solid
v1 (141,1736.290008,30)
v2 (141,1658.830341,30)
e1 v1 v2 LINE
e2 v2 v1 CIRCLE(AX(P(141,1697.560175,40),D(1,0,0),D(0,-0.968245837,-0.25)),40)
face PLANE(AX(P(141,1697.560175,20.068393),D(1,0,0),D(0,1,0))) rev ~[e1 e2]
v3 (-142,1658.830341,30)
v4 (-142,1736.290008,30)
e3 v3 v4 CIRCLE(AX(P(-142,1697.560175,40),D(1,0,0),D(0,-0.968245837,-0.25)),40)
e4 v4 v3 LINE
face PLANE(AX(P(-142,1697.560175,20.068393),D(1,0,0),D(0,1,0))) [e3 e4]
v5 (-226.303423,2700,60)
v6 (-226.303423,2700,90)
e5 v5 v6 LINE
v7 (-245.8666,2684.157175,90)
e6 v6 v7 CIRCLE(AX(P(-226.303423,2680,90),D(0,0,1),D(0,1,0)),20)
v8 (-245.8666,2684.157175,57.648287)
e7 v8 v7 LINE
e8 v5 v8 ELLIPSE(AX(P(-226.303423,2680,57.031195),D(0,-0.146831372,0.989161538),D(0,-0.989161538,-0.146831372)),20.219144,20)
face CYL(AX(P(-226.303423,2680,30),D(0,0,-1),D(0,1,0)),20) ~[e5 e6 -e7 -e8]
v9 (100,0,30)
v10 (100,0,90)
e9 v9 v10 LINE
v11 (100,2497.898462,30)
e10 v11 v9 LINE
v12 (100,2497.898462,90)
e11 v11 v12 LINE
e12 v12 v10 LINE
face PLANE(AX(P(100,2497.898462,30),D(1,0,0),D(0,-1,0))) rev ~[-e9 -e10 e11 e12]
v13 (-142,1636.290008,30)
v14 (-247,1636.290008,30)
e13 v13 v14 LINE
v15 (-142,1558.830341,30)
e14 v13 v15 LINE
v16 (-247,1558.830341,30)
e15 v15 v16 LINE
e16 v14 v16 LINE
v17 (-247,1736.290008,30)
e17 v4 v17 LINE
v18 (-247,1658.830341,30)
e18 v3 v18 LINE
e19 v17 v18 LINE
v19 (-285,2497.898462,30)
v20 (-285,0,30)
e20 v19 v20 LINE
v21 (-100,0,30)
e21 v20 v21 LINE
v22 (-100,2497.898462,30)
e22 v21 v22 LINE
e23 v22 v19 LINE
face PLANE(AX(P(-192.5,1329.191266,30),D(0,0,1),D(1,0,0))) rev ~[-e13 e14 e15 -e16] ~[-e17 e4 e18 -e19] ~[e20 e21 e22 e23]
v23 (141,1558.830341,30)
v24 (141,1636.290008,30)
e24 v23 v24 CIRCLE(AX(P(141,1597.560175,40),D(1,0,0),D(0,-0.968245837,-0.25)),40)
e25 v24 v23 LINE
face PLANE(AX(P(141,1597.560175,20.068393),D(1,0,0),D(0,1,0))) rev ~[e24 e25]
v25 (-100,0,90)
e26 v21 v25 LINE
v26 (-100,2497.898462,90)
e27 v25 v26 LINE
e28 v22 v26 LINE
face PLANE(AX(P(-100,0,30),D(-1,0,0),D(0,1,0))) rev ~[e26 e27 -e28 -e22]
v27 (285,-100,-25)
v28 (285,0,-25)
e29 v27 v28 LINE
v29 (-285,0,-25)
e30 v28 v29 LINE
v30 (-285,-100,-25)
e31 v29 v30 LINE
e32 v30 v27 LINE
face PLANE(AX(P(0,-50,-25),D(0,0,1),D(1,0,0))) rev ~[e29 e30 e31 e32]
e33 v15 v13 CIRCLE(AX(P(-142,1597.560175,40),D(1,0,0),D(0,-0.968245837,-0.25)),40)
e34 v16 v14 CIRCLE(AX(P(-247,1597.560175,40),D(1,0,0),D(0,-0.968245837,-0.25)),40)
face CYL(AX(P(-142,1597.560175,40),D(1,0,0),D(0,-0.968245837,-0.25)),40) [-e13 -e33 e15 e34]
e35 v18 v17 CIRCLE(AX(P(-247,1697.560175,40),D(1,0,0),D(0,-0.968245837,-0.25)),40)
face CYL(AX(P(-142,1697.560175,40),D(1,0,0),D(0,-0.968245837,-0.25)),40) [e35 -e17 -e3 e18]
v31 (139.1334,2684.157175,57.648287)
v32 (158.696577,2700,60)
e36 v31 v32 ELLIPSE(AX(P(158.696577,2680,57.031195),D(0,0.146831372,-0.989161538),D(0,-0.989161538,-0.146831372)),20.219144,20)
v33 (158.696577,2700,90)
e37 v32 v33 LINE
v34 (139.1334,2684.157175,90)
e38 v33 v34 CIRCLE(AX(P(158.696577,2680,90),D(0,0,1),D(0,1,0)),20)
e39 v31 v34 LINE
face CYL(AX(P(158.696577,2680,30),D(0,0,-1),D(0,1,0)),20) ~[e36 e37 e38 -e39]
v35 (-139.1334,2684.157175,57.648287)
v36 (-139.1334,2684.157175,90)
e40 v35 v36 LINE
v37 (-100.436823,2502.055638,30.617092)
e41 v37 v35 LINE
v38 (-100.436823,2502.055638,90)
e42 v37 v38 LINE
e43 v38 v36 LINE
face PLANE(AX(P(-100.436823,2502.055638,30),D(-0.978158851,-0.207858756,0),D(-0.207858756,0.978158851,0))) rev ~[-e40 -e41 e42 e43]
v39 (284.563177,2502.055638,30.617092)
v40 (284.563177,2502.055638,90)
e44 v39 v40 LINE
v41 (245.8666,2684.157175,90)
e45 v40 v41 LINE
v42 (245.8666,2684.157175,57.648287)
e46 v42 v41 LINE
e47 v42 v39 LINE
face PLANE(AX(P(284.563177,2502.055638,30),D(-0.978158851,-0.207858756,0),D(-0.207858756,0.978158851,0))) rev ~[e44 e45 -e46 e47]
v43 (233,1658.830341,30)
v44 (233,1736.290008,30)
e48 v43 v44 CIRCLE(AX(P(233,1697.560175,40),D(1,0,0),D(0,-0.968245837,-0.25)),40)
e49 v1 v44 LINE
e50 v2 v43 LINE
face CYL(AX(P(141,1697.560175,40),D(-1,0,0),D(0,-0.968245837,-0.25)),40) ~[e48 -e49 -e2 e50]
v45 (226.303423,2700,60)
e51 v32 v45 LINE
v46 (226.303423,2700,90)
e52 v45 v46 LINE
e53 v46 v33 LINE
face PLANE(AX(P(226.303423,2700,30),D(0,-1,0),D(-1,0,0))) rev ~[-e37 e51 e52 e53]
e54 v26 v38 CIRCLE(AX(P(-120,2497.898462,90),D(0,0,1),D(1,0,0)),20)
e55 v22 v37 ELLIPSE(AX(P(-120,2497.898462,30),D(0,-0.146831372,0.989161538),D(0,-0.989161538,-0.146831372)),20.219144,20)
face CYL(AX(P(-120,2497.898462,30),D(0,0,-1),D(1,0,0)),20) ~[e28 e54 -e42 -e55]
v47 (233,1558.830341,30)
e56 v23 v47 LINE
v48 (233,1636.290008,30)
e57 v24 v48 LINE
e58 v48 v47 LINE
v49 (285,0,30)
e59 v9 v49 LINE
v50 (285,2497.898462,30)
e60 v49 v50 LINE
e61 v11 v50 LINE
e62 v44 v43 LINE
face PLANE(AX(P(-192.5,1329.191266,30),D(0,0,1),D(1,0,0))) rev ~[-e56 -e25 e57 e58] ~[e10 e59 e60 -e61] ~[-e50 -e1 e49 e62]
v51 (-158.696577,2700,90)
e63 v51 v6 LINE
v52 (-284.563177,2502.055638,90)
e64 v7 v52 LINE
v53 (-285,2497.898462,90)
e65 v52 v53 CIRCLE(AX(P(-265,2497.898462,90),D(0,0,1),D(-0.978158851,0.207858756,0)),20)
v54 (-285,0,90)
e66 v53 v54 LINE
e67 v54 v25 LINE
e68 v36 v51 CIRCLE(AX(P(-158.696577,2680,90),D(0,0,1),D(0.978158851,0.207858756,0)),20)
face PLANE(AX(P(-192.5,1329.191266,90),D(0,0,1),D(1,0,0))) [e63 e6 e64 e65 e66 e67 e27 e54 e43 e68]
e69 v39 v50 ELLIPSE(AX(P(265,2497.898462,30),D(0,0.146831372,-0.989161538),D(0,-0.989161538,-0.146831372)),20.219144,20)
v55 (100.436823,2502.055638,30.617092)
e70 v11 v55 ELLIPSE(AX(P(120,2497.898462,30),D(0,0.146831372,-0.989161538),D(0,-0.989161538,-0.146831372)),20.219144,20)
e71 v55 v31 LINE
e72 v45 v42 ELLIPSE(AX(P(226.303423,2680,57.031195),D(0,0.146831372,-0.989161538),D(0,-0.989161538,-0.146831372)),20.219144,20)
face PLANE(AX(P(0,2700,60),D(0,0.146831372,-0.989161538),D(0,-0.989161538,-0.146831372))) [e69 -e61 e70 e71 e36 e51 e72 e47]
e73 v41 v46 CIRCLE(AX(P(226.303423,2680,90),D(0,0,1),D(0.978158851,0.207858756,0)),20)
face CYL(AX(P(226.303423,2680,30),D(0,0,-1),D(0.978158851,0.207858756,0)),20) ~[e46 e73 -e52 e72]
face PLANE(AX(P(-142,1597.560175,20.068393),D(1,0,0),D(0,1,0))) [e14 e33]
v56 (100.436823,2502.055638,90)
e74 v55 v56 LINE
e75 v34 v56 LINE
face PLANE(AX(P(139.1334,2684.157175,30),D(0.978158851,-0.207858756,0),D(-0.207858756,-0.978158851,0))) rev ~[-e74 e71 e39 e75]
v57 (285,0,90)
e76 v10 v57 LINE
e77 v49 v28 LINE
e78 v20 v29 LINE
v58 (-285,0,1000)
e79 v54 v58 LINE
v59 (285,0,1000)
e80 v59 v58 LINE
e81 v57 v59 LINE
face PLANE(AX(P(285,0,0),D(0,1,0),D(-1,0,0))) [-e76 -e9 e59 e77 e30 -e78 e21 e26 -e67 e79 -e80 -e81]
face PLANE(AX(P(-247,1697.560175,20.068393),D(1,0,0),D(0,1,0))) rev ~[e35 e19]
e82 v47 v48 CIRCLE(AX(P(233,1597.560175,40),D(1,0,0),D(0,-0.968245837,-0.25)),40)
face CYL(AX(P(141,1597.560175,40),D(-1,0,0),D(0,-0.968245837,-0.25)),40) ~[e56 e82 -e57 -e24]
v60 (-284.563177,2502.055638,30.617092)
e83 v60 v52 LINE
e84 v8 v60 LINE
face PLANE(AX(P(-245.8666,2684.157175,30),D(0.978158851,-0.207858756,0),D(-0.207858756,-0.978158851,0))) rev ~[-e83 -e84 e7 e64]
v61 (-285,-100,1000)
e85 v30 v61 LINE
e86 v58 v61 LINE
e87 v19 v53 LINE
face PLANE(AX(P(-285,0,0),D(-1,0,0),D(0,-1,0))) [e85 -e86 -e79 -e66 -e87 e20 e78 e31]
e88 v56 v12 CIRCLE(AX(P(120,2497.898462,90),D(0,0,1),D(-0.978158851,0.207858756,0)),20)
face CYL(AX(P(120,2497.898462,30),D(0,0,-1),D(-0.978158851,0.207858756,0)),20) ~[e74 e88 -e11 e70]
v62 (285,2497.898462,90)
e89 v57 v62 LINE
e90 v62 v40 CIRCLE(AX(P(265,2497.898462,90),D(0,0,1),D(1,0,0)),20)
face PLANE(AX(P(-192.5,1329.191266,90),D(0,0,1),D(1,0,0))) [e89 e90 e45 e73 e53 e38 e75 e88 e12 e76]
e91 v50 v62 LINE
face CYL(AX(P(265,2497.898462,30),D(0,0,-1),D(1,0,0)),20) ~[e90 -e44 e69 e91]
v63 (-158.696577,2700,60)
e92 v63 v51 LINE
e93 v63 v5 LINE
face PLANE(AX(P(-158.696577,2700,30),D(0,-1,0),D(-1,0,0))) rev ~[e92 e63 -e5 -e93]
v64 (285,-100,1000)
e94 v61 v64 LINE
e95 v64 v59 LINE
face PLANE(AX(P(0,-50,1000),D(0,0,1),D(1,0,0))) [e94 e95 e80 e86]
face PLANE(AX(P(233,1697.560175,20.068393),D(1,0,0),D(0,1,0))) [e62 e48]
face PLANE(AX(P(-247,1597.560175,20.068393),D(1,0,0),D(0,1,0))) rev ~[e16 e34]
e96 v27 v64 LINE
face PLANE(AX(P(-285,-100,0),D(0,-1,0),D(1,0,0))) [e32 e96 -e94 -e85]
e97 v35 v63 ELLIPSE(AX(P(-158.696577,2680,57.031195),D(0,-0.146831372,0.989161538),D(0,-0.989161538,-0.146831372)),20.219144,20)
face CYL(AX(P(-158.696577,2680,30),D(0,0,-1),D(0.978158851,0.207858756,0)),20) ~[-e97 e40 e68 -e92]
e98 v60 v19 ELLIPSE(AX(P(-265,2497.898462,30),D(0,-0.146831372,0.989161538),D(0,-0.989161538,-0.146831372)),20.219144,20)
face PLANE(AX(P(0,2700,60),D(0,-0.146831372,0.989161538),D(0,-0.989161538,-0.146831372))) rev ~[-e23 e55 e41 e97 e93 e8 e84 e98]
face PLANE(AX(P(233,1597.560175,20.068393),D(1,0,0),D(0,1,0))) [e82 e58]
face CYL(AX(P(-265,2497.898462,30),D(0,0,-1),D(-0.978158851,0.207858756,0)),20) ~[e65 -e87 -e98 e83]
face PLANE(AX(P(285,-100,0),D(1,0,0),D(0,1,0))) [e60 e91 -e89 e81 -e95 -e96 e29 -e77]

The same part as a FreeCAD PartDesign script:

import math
import FreeCAD as App
import Part
import Sketcher

V = App.Vector

doc = App.newDocument("Part")
body = doc.addObject("PartDesign::Body", "Body")

# Sketch on XY plane
sketch1 = doc.addObject("Sketcher::SketchObject", "Sketch")
body.addObject(sketch1)
sketch1.AttachmentSupport = (doc.XY_Plane, [""])
sketch1.MapMode = "FlatFace"
sketch1.AttachmentOffset = App.Placement(V(0, 0, 30), App.Rotation())
sketch1.addGeometry(Part.LineSegment(V(-100, 0, 0), V(-100, 2497.9, 0)), False)
sketch1.addGeometry(Part.ArcOfCircle(Part.Circle(V(-120, 2497.9, 0), V(0, 0, 1), 20), math.radians(0), math.radians(12)), False)
sketch1.addGeometry(Part.LineSegment(V(-100.4, 2502.1, 0), V(-139.1, 2684.2, 0)), False)
sketch1.addGeometry(Part.ArcOfCircle(Part.Circle(V(-158.7, 2680, 0), V(0, 0, 1), 20), math.radians(12), math.radians(90)), False)
sketch1.addGeometry(Part.LineSegment(V(-158.7, 2700, 0), V(-226.3, 2700, 0)), False)
sketch1.addGeometry(Part.ArcOfCircle(Part.Circle(V(-226.3, 2680, 0), V(0, 0, 1), 20), math.radians(90), math.radians(168)), False)
sketch1.addGeometry(Part.LineSegment(V(-245.9, 2684.2, 0), V(-284.6, 2502.1, 0)), False)
sketch1.addGeometry(Part.ArcOfCircle(Part.Circle(V(-265, 2497.9, 0), V(0, 0, 1), 20), math.radians(168), math.radians(180)), False)
sketch1.addGeometry(Part.LineSegment(V(-285, 2497.9, 0), V(-285, -100, 0)), False)
sketch1.addGeometry(Part.LineSegment(V(-285, -100, 0), V(285, -100, 0)), False)
sketch1.addGeometry(Part.LineSegment(V(285, -100, 0), V(285, 2497.9, 0)), False)
sketch1.addGeometry(Part.ArcOfCircle(Part.Circle(V(265, 2497.9, 0), V(0, 0, 1), 20), math.radians(0), math.radians(12)), False)
sketch1.addGeometry(Part.LineSegment(V(284.6, 2502.1, 0), V(245.9, 2684.2, 0)), False)
sketch1.addGeometry(Part.ArcOfCircle(Part.Circle(V(226.3, 2680, 0), V(0, 0, 1), 20), math.radians(12), math.radians(90)), False)
sketch1.addGeometry(Part.LineSegment(V(226.3, 2700, 0), V(158.7, 2700, 0)), False)
sketch1.addGeometry(Part.ArcOfCircle(Part.Circle(V(158.7, 2680, 0), V(0, 0, 1), 20), math.radians(90), math.radians(168)), False)
sketch1.addGeometry(Part.LineSegment(V(139.1, 2684.2, 0), V(100.4, 2502.1, 0)), False)
sketch1.addGeometry(Part.ArcOfCircle(Part.Circle(V(120, 2497.9, 0), V(0, 0, 1), 20), math.radians(168), math.radians(180)), False)
sketch1.addGeometry(Part.LineSegment(V(100, 2497.9, 0), V(100, 0, 0)), False)
sketch1.addGeometry(Part.LineSegment(V(100, 0, 0), V(-100, 0, 0)), False)
sketch1.addConstraint(Sketcher.Constraint("Tangent", 0, 2, 1, 1))
sketch1.addConstraint(Sketcher.Constraint("Tangent", 1, 2, 2, 1))
sketch1.addConstraint(Sketcher.Constraint("Tangent", 2, 2, 3, 1))
sketch1.addConstraint(Sketcher.Constraint("Tangent", 3, 2, 4, 1))
sketch1.addConstraint(Sketcher.Constraint("Tangent", 4, 2, 5, 1))
sketch1.addConstraint(Sketcher.Constraint("Tangent", 5, 2, 6, 1))
sketch1.addConstraint(Sketcher.Constraint("Tangent", 6, 2, 7, 1))
sketch1.addConstraint(Sketcher.Constraint("Tangent", 7, 2, 8, 1))
sketch1.addConstraint(Sketcher.Constraint("Coincident", 8, 2, 9, 1))
sketch1.addConstraint(Sketcher.Constraint("Coincident", 9, 2, 10, 1))
sketch1.addConstraint(Sketcher.Constraint("Tangent", 10, 2, 11, 1))
sketch1.addConstraint(Sketcher.Constraint("Tangent", 11, 2, 12, 1))
sketch1.addConstraint(Sketcher.Constraint("Tangent", 12, 2, 13, 1))
sketch1.addConstraint(Sketcher.Constraint("Tangent", 13, 2, 14, 1))
sketch1.addConstraint(Sketcher.Constraint("Tangent", 14, 2, 15, 1))
sketch1.addConstraint(Sketcher.Constraint("Tangent", 15, 2, 16, 1))
sketch1.addConstraint(Sketcher.Constraint("Tangent", 16, 2, 17, 1))
sketch1.addConstraint(Sketcher.Constraint("Tangent", 17, 2, 18, 1))
sketch1.addConstraint(Sketcher.Constraint("Coincident", 18, 2, 19, 1))
sketch1.addConstraint(Sketcher.Constraint("Coincident", 19, 2, 0, 1))
sketch1.addConstraint(Sketcher.Constraint("Vertical", 0))
sketch1.addConstraint(Sketcher.Constraint("Horizontal", 4))
sketch1.addConstraint(Sketcher.Constraint("Vertical", 8))
sketch1.addConstraint(Sketcher.Constraint("Horizontal", 9))
sketch1.addConstraint(Sketcher.Constraint("Vertical", 10))
sketch1.addConstraint(Sketcher.Constraint("Horizontal", 14))
sketch1.addConstraint(Sketcher.Constraint("Vertical", 18))
sketch1.addConstraint(Sketcher.Constraint("Horizontal", 19))
sketch1.addConstraint(Sketcher.Constraint("Equal", 1, 3))
sketch1.addConstraint(Sketcher.Constraint("Equal", 3, 5))
sketch1.addConstraint(Sketcher.Constraint("Equal", 5, 7))
sketch1.addConstraint(Sketcher.Constraint("Equal", 7, 11))
sketch1.addConstraint(Sketcher.Constraint("Equal", 11, 13))
sketch1.addConstraint(Sketcher.Constraint("Equal", 13, 15))
sketch1.addConstraint(Sketcher.Constraint("Equal", 15, 17))
sketch1.addConstraint(Sketcher.Constraint("Symmetric", 18, 2, 19, 2, -1, 1))
sketch1.addConstraint(Sketcher.Constraint("Symmetric", 7, 3, 11, 3, -2))
sketch1.addConstraint(Sketcher.Constraint("Symmetric", 5, 3, 13, 3, -2))
sketch1.addConstraint(Sketcher.Constraint("Symmetric", 1, 2, 16, 2, -2))
sketch1.addConstraint(Sketcher.Constraint("Parallel", 2, 12))
sketch1.addConstraint(Sketcher.Constraint("Horizontal", 1, 3, 7, 3))
sketch1.addConstraint(Sketcher.Constraint("Radius", 1, 20.0))
sketch1.addConstraint(Sketcher.Constraint("DistanceX", 9, 1, 9, 2, 570.0))
sketch1.addConstraint(Sketcher.Constraint("DistanceX", 19, 2, 19, 1, 200.0))
sketch1.addConstraint(Sketcher.Constraint("DistanceY", -1, 1, 3, 3, 2680.0))
sketch1.addConstraint(Sketcher.Constraint("DistanceY", 8, 2, -1, 1, 100.0))
sketch1.addConstraint(Sketcher.Constraint("DistanceX", 2, 2, -1, 1, 139.1334))
sketch1.addConstraint(Sketcher.Constraint("DistanceY", 0, 1, 0, 2, 2497.898462))
pad1 = doc.addObject("PartDesign::Pad", "Pad")
body.addObject(pad1)
pad1.Profile = sketch1
pad1.Length = 60

# Sketch on XY plane
sketch2 = doc.addObject("Sketcher::SketchObject", "Sketch001")
body.addObject(sketch2)
sketch2.AttachmentSupport = (doc.XY_Plane, [""])
sketch2.MapMode = "FlatFace"
sketch2.addGeometry(Part.LineSegment(V(-285, 0, 0), V(-285, -100, 0)), False)
sketch2.addGeometry(Part.LineSegment(V(-285, -100, 0), V(285, -100, 0)), False)
sketch2.addGeometry(Part.LineSegment(V(285, -100, 0), V(285, 0, 0)), False)
sketch2.addGeometry(Part.LineSegment(V(285, 0, 0), V(-285, 0, 0)), False)
sketch2.addConstraint(Sketcher.Constraint("Coincident", 0, 2, 1, 1))
sketch2.addConstraint(Sketcher.Constraint("Coincident", 1, 2, 2, 1))
sketch2.addConstraint(Sketcher.Constraint("Coincident", 2, 2, 3, 1))
sketch2.addConstraint(Sketcher.Constraint("Coincident", 3, 2, 0, 1))
sketch2.addConstraint(Sketcher.Constraint("Vertical", 0))
sketch2.addConstraint(Sketcher.Constraint("Horizontal", 1))
sketch2.addConstraint(Sketcher.Constraint("Vertical", 2))
sketch2.addConstraint(Sketcher.Constraint("Horizontal", 3))
sketch2.addConstraint(Sketcher.Constraint("Symmetric", 2, 2, 3, 2, -1, 1))
sketch2.addConstraint(Sketcher.Constraint("DistanceX", 1, 1, 1, 2, 570.0))
sketch2.addConstraint(Sketcher.Constraint("DistanceY", 0, 2, 0, 1, 100.0))
pad2 = doc.addObject("PartDesign::Pad", "Pad001")
body.addObject(pad2)
pad2.Profile = sketch2
pad2.Type = "TwoLengths"
pad2.Length = 1000
pad2.Length2 = 25

# Sketch on YZ plane
sketch3 = doc.addObject("Sketcher::SketchObject", "Sketch002")
body.addObject(sketch3)
sketch3.AttachmentSupport = (doc.YZ_Plane, [""])
sketch3.MapMode = "FlatFace"
sketch3.AttachmentOffset = App.Placement(V(0, 0, 141), App.Rotation())
sketch3.addGeometry(Part.LineSegment(V(1736, 30, 0), V(1659, 30, 0)), False)
sketch3.addGeometry(Part.ArcOfCircle(Part.Circle(V(1698, 40, 0), V(0, 0, 1), 40), math.radians(-166), math.radians(-14)), False)
sketch3.addGeometry(Part.LineSegment(V(1636, 30, 0), V(1559, 30, 0)), False)
sketch3.addGeometry(Part.ArcOfCircle(Part.Circle(V(1598, 40, 0), V(0, 0, 1), 40), math.radians(-166), math.radians(-14)), False)
sketch3.addConstraint(Sketcher.Constraint("Coincident", 0, 1, 1, 2))
sketch3.addConstraint(Sketcher.Constraint("Coincident", 1, 1, 0, 2))
sketch3.addConstraint(Sketcher.Constraint("Coincident", 2, 1, 3, 2))
sketch3.addConstraint(Sketcher.Constraint("Coincident", 3, 1, 2, 2))
sketch3.addConstraint(Sketcher.Constraint("Horizontal", 0))
sketch3.addConstraint(Sketcher.Constraint("Horizontal", 2))
sketch3.addConstraint(Sketcher.Constraint("Equal", 1, 3))
sketch3.addConstraint(Sketcher.Constraint("Horizontal", 1, 3, 3, 3))
sketch3.addConstraint(Sketcher.Constraint("Horizontal", 1, 1, 2, 1))
sketch3.addConstraint(Sketcher.Constraint("Radius", 1, 40.0))
sketch3.addConstraint(Sketcher.Constraint("DistanceY", -1, 1, 1, 3, 40.0))
sketch3.addConstraint(Sketcher.Constraint("DistanceY", -1, 1, 0, 1, 30.0))
sketch3.addConstraint(Sketcher.Constraint("DistanceX", 3, 3, 1, 3, 100.0))
sketch3.addConstraint(Sketcher.Constraint("DistanceX", -1, 1, 0, 1, 1736.290008))
pad3 = doc.addObject("PartDesign::Pad", "Pad002")
body.addObject(pad3)
pad3.Profile = sketch3
pad3.Length = 92

# Sketch on YZ plane
sketch4 = doc.addObject("Sketcher::SketchObject", "Sketch003")
body.addObject(sketch4)
sketch4.AttachmentSupport = (doc.YZ_Plane, [""])
sketch4.MapMode = "FlatFace"
sketch4.AttachmentOffset = App.Placement(V(0, 0, -142), App.Rotation())
sketch4.addGeometry(Part.LineSegment(V(1636, 30, 0), V(1559, 30, 0)), False)
sketch4.addGeometry(Part.ArcOfCircle(Part.Circle(V(1598, 40, 0), V(0, 0, 1), 40), math.radians(-166), math.radians(-14)), False)
sketch4.addGeometry(Part.LineSegment(V(1736, 30, 0), V(1659, 30, 0)), False)
sketch4.addGeometry(Part.ArcOfCircle(Part.Circle(V(1698, 40, 0), V(0, 0, 1), 40), math.radians(-166), math.radians(-14)), False)
sketch4.addConstraint(Sketcher.Constraint("Coincident", 0, 1, 1, 2))
sketch4.addConstraint(Sketcher.Constraint("Coincident", 1, 1, 0, 2))
sketch4.addConstraint(Sketcher.Constraint("Coincident", 2, 1, 3, 2))
sketch4.addConstraint(Sketcher.Constraint("Coincident", 3, 1, 2, 2))
sketch4.addConstraint(Sketcher.Constraint("Horizontal", 0))
sketch4.addConstraint(Sketcher.Constraint("Horizontal", 2))
sketch4.addConstraint(Sketcher.Constraint("Equal", 1, 3))
sketch4.addConstraint(Sketcher.Constraint("Horizontal", 1, 3, 3, 3))
sketch4.addConstraint(Sketcher.Constraint("Horizontal", 1, 1, 2, 1))
sketch4.addConstraint(Sketcher.Constraint("Radius", 1, 40.0))
sketch4.addConstraint(Sketcher.Constraint("DistanceY", -1, 1, 1, 3, 40.0))
sketch4.addConstraint(Sketcher.Constraint("DistanceY", -1, 1, 0, 1, 30.0))
sketch4.addConstraint(Sketcher.Constraint("DistanceX", 1, 3, 3, 3, 100.0))
sketch4.addConstraint(Sketcher.Constraint("DistanceX", -1, 1, 0, 1, 1636.290008))
pad4 = doc.addObject("PartDesign::Pad", "Pad003")
body.addObject(pad4)
pad4.Profile = sketch4
pad4.Length = 105
pad4.Reversed = True

# Sketch on YZ plane
sketch5 = doc.addObject("Sketcher::SketchObject", "Sketch004")
body.addObject(sketch5)
sketch5.AttachmentSupport = (doc.YZ_Plane, [""])
sketch5.MapMode = "FlatFace"
sketch5.addGeometry(Part.LineSegment(V(2700, 30, 0), V(2700, 60, 0)), False)
sketch5.addGeometry(Part.LineSegment(V(2700, 60, 0), V(2498, 30, 0)), False)
sketch5.addGeometry(Part.LineSegment(V(2498, 30, 0), V(2700, 30, 0)), False)
sketch5.addConstraint(Sketcher.Constraint("Coincident", 0, 2, 1, 1))
sketch5.addConstraint(Sketcher.Constraint("Coincident", 1, 2, 2, 1))
sketch5.addConstraint(Sketcher.Constraint("Coincident", 2, 2, 0, 1))
sketch5.addConstraint(Sketcher.Constraint("Vertical", 0))
sketch5.addConstraint(Sketcher.Constraint("Horizontal", 2))
sketch5.addConstraint(Sketcher.Constraint("DistanceY", 0, 1, 0, 2, 30.0))
sketch5.addConstraint(Sketcher.Constraint("DistanceX", -1, 1, 0, 2, 2700.0))
sketch5.addConstraint(Sketcher.Constraint("DistanceY", -1, 1, 0, 2, 60.0))
sketch5.addConstraint(Sketcher.Constraint("Distance", 1, 204.316009))
pocket1 = doc.addObject("PartDesign::Pocket", "Pocket")
body.addObject(pocket1)
pocket1.Profile = sketch5
pocket1.Type = "ThroughAll"
pocket1.Midplane = True

doc.recompute()
